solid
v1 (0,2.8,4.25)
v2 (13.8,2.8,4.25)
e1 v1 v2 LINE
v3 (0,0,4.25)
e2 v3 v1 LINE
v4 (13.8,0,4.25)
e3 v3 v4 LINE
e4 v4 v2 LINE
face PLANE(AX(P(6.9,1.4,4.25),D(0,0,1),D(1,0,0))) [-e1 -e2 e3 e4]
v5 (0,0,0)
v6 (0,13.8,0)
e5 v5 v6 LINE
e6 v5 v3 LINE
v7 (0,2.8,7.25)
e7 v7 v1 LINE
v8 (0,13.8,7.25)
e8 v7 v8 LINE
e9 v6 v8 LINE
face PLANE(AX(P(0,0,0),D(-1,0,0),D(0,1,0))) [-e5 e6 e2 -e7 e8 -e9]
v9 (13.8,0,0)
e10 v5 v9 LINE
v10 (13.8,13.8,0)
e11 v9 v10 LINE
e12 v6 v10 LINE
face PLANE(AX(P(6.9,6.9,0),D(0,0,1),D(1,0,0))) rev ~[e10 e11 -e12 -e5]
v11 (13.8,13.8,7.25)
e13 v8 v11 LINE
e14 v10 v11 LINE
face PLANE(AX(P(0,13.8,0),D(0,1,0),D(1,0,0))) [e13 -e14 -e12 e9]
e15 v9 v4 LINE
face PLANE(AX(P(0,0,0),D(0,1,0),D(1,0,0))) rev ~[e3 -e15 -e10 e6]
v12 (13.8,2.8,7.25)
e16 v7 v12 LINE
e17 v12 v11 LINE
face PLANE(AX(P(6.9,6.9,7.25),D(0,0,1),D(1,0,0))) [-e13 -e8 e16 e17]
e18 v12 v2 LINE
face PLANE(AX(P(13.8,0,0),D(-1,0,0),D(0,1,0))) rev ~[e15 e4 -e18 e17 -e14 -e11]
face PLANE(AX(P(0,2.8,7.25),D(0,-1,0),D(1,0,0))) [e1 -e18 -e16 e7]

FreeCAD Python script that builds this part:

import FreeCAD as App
import Part
import Sketcher

doc = App.newDocument("Part")
params = doc.addObject("Spreadsheet::Sheet", "Params")
for row, (alias, value) in enumerate([
    ("sketch1_width", "13.8 mm"),
    ("pad1_length", "7.25 mm"),
    ("sketch2_width", "13.8 mm"),
    ("sketch2_height", "2.8 mm"),
    ("pocket1_length", "3 mm"),
], start=1):
    params.set(f"A{row}", alias)
    params.set(f"B{row}", "=" + value)
    params.setAlias(f"B{row}", alias)

body = doc.addObject("PartDesign::Body", "Body")

sketch1 = body.newObject("Sketcher::SketchObject", "Sketch")
sketch1.AttachmentSupport = (doc.getObject("XY_Plane"), [""])
sketch1.MapMode = "FlatFace"
sketch1.addGeometry([
    Part.LineSegment(App.Vector(0, 14, 0), App.Vector(0, 0, 0)),
    Part.LineSegment(App.Vector(0, 0, 0), App.Vector(14, 0, 0)),
    Part.LineSegment(App.Vector(14, 0, 0), App.Vector(14, 14, 0)),
    Part.LineSegment(App.Vector(14, 14, 0), App.Vector(0, 14, 0)),
], False)
sketch1.addConstraint([
    Sketcher.Constraint("Coincident", 0, 2, 1, 1),
    Sketcher.Constraint("Coincident", 1, 2, 2, 1),
    Sketcher.Constraint("Coincident", 2, 2, 3, 1),
    Sketcher.Constraint("Coincident", 3, 2, 0, 1),
    Sketcher.Constraint("Vertical", 0),
    Sketcher.Constraint("Horizontal", 1),
    Sketcher.Constraint("Vertical", 2),
    Sketcher.Constraint("Horizontal", 3),
    Sketcher.Constraint("Coincident", 0, 2, -1, 1),
    Sketcher.Constraint("Equal", 3, 0),
    Sketcher.Constraint("DistanceX", 1, 1, 1, 2, 13.8),
])
sketch1.setExpression("Constraints[10]", "Params.sketch1_width")
pad1 = body.newObject("PartDesign::Pad", "Pad")
pad1.Profile = sketch1
pad1.setExpression("Length", "Params.pad1_length")

sketch2 = body.newObject("Sketcher::SketchObject", "Sketch001")
sketch2.AttachmentSupport = (doc.getObject("XY_Plane"), [""])
sketch2.MapMode = "FlatFace"
sketch2.AttachmentOffset = App.Placement(App.Vector(0, 0, 7.25), App.Rotation())
sketch2.addGeometry([
    Part.LineSegment(App.Vector(0, 2.8, 0), App.Vector(0, 0, 0)),
    Part.LineSegment(App.Vector(0, 0, 0), App.Vector(13.8, 0, 0)),
    Part.LineSegment(App.Vector(13.8, 0, 0), App.Vector(13.8, 2.8, 0)),
    Part.LineSegment(App.Vector(13.8, 2.8, 0), App.Vector(0, 2.8, 0)),
], False)
sketch2.addConstraint([
    Sketcher.Constraint("Coincident", 0, 2, 1, 1),
    Sketcher.Constraint("Coincident", 1, 2, 2, 1),
    Sketcher.Constraint("Coincident", 2, 2, 3, 1),
    Sketcher.Constraint("Coincident", 3, 2, 0, 1),
    Sketcher.Constraint("Vertical", 0),
    Sketcher.Constraint("Horizontal", 1),
    Sketcher.Constraint("Vertical", 2),
    Sketcher.Constraint("Horizontal", 3),
    Sketcher.Constraint("Coincident", 0, 2, -1, 1),
    Sketcher.Constraint("DistanceX", 1, 1, 1, 2, 13.8),
    Sketcher.Constraint("DistanceY", 0, 2, 0, 1, 2.8),
])
sketch2.setExpression("Constraints[9]", "Params.sketch2_width")
sketch2.setExpression("Constraints[10]", "Params.sketch2_height")
pocket1 = body.newObject("PartDesign::Pocket", "Pocket")
pocket1.Profile = sketch2
pocket1.setExpression("Length", "Params.pocket1_length")

doc.recompute()
